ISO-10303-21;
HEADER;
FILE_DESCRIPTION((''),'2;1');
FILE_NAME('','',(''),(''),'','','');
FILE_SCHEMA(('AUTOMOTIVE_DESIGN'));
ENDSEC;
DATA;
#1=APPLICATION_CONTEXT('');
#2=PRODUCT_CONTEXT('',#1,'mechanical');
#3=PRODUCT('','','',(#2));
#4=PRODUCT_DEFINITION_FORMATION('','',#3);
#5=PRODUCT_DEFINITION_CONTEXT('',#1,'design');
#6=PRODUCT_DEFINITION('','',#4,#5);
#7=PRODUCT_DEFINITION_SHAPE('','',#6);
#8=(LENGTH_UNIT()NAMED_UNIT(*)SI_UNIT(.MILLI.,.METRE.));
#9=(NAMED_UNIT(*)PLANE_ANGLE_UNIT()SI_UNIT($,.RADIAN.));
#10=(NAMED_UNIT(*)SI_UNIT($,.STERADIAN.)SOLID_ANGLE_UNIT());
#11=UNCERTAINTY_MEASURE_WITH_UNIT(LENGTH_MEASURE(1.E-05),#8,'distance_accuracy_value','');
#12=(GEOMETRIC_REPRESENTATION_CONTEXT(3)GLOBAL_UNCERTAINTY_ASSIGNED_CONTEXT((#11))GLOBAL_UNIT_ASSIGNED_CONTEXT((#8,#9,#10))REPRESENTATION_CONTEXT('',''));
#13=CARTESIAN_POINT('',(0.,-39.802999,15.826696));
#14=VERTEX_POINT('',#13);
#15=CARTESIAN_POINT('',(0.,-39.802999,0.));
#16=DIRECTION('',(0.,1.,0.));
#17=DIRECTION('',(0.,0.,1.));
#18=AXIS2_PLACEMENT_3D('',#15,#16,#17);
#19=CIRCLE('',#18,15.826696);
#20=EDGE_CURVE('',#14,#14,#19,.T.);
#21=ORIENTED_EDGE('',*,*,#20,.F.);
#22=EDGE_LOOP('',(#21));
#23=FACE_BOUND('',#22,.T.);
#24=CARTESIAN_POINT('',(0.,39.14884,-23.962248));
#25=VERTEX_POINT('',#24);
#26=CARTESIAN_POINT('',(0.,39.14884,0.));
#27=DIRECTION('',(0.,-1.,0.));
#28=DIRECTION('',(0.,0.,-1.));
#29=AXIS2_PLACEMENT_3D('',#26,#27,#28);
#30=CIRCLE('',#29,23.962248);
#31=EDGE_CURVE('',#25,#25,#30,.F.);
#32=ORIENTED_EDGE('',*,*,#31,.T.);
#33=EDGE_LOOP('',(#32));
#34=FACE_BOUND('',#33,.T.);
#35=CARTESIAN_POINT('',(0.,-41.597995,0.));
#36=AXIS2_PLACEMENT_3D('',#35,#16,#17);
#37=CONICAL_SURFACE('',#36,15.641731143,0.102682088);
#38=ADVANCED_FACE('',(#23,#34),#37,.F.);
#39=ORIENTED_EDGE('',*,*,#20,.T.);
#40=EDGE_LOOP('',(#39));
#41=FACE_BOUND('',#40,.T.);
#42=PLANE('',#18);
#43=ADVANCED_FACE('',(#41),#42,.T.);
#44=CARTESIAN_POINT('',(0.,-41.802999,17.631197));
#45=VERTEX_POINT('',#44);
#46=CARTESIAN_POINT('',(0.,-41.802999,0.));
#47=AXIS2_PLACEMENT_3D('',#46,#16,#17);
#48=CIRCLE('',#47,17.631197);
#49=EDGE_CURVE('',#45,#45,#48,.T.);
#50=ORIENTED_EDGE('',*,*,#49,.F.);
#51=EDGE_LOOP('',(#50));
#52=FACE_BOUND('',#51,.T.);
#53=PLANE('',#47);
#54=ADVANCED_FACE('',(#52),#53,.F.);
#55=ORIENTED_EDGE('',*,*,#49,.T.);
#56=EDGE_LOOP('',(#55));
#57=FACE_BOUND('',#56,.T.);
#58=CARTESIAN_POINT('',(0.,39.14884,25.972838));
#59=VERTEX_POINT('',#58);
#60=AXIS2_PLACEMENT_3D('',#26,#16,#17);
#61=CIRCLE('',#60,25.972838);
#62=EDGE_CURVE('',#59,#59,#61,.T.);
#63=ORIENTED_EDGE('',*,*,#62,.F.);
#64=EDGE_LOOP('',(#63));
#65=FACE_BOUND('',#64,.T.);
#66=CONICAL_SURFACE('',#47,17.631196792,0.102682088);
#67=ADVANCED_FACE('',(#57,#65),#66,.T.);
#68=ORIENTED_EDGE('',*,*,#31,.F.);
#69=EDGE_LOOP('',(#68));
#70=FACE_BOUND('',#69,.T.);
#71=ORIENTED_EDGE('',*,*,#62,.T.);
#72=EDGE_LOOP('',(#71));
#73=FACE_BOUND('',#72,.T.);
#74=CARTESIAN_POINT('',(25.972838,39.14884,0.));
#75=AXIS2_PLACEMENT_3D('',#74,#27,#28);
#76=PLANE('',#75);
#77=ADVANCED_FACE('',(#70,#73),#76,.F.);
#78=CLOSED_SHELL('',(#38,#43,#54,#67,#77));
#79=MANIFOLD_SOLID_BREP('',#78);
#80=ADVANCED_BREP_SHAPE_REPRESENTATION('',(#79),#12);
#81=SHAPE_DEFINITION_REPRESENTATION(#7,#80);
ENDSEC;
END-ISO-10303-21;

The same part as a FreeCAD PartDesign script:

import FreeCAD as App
import Part
import Sketcher
from FreeCAD import Vector


def faces_at(feature, points):
    """Names of the faces that lie closest to the given points."""
    faces = feature.Shape.Faces
    near = lambda p: min(range(len(faces)), key=lambda i: faces[i].distToShape(Part.Vertex(*p))[0])
    return sorted({f"Face{near(p) + 1}" for p in points})


def add_polygon(sketch, points):
    """Adds a closed chain of lines whose ends are joined by coincident constraints."""
    first, n = sketch.GeometryCount, len(points)
    for a, b in zip(points, points[1:] + points[:1]):
        sketch.addGeometry(Part.LineSegment(App.Vector(*a, 0), App.Vector(*b, 0)), False)
    for i in range(n):
        sketch.addConstraint(Sketcher.Constraint("Coincident", first + i, 2, first + (i + 1) % n, 1))

doc = App.newDocument("Part")
params = doc.addObject("Spreadsheet::Sheet", "Params")
for row, (alias, value) in enumerate([
    ("revolution_angle", "360 deg"),
    ("thickness_wall", "2 mm"),
], start=1):
    params.set(f"A{row}", alias)
    params.set(f"B{row}", "=" + value)
    params.setAlias(f"B{row}", alias)

body = doc.addObject("PartDesign::Body", "Body")

sketch1 = body.newObject("Sketcher::SketchObject", "Sketch")
sketch1.AttachmentSupport = (doc.getObject("XY_Plane"), [""])
sketch1.MapMode = "FlatFace"
add_polygon(sketch1, [(0, -42), (18, -42), (26, 39), (0, 39)])
sketch1.addConstraint([
    Sketcher.Constraint("Horizontal", 0),
    Sketcher.Constraint("Horizontal", 2),
    Sketcher.Constraint("Vertical", 3),
    Sketcher.Constraint("PointOnObject", 2, 2, -2),
    Sketcher.Constraint("DistanceY", 0, 2, -1, 1, 41.802999),
    Sketcher.Constraint("DistanceX", 2, 2, 2, 1, 25.972838),
    Sketcher.Constraint("DistanceY", 3, 2, 3, 1, 80.951839),
    Sketcher.Constraint("DistanceX", 0, 1, 0, 2, 17.631197),
])
revolution = body.newObject("PartDesign::Revolution", "Revolution")
revolution.Profile = sketch1
revolution.ReferenceAxis = (sketch1, ["V_Axis"])
revolution.setExpression("Angle", "Params.revolution_angle")
doc.recompute()

thickness = body.newObject("PartDesign::Thickness", "Thickness")
thickness.Base = (revolution, faces_at(revolution, [(0, 39.149, 0)]))
thickness.setExpression("Value", "Params.thickness_wall")
thickness.Reversed = True
thickness.Join = "Intersection"

doc.recompute()
